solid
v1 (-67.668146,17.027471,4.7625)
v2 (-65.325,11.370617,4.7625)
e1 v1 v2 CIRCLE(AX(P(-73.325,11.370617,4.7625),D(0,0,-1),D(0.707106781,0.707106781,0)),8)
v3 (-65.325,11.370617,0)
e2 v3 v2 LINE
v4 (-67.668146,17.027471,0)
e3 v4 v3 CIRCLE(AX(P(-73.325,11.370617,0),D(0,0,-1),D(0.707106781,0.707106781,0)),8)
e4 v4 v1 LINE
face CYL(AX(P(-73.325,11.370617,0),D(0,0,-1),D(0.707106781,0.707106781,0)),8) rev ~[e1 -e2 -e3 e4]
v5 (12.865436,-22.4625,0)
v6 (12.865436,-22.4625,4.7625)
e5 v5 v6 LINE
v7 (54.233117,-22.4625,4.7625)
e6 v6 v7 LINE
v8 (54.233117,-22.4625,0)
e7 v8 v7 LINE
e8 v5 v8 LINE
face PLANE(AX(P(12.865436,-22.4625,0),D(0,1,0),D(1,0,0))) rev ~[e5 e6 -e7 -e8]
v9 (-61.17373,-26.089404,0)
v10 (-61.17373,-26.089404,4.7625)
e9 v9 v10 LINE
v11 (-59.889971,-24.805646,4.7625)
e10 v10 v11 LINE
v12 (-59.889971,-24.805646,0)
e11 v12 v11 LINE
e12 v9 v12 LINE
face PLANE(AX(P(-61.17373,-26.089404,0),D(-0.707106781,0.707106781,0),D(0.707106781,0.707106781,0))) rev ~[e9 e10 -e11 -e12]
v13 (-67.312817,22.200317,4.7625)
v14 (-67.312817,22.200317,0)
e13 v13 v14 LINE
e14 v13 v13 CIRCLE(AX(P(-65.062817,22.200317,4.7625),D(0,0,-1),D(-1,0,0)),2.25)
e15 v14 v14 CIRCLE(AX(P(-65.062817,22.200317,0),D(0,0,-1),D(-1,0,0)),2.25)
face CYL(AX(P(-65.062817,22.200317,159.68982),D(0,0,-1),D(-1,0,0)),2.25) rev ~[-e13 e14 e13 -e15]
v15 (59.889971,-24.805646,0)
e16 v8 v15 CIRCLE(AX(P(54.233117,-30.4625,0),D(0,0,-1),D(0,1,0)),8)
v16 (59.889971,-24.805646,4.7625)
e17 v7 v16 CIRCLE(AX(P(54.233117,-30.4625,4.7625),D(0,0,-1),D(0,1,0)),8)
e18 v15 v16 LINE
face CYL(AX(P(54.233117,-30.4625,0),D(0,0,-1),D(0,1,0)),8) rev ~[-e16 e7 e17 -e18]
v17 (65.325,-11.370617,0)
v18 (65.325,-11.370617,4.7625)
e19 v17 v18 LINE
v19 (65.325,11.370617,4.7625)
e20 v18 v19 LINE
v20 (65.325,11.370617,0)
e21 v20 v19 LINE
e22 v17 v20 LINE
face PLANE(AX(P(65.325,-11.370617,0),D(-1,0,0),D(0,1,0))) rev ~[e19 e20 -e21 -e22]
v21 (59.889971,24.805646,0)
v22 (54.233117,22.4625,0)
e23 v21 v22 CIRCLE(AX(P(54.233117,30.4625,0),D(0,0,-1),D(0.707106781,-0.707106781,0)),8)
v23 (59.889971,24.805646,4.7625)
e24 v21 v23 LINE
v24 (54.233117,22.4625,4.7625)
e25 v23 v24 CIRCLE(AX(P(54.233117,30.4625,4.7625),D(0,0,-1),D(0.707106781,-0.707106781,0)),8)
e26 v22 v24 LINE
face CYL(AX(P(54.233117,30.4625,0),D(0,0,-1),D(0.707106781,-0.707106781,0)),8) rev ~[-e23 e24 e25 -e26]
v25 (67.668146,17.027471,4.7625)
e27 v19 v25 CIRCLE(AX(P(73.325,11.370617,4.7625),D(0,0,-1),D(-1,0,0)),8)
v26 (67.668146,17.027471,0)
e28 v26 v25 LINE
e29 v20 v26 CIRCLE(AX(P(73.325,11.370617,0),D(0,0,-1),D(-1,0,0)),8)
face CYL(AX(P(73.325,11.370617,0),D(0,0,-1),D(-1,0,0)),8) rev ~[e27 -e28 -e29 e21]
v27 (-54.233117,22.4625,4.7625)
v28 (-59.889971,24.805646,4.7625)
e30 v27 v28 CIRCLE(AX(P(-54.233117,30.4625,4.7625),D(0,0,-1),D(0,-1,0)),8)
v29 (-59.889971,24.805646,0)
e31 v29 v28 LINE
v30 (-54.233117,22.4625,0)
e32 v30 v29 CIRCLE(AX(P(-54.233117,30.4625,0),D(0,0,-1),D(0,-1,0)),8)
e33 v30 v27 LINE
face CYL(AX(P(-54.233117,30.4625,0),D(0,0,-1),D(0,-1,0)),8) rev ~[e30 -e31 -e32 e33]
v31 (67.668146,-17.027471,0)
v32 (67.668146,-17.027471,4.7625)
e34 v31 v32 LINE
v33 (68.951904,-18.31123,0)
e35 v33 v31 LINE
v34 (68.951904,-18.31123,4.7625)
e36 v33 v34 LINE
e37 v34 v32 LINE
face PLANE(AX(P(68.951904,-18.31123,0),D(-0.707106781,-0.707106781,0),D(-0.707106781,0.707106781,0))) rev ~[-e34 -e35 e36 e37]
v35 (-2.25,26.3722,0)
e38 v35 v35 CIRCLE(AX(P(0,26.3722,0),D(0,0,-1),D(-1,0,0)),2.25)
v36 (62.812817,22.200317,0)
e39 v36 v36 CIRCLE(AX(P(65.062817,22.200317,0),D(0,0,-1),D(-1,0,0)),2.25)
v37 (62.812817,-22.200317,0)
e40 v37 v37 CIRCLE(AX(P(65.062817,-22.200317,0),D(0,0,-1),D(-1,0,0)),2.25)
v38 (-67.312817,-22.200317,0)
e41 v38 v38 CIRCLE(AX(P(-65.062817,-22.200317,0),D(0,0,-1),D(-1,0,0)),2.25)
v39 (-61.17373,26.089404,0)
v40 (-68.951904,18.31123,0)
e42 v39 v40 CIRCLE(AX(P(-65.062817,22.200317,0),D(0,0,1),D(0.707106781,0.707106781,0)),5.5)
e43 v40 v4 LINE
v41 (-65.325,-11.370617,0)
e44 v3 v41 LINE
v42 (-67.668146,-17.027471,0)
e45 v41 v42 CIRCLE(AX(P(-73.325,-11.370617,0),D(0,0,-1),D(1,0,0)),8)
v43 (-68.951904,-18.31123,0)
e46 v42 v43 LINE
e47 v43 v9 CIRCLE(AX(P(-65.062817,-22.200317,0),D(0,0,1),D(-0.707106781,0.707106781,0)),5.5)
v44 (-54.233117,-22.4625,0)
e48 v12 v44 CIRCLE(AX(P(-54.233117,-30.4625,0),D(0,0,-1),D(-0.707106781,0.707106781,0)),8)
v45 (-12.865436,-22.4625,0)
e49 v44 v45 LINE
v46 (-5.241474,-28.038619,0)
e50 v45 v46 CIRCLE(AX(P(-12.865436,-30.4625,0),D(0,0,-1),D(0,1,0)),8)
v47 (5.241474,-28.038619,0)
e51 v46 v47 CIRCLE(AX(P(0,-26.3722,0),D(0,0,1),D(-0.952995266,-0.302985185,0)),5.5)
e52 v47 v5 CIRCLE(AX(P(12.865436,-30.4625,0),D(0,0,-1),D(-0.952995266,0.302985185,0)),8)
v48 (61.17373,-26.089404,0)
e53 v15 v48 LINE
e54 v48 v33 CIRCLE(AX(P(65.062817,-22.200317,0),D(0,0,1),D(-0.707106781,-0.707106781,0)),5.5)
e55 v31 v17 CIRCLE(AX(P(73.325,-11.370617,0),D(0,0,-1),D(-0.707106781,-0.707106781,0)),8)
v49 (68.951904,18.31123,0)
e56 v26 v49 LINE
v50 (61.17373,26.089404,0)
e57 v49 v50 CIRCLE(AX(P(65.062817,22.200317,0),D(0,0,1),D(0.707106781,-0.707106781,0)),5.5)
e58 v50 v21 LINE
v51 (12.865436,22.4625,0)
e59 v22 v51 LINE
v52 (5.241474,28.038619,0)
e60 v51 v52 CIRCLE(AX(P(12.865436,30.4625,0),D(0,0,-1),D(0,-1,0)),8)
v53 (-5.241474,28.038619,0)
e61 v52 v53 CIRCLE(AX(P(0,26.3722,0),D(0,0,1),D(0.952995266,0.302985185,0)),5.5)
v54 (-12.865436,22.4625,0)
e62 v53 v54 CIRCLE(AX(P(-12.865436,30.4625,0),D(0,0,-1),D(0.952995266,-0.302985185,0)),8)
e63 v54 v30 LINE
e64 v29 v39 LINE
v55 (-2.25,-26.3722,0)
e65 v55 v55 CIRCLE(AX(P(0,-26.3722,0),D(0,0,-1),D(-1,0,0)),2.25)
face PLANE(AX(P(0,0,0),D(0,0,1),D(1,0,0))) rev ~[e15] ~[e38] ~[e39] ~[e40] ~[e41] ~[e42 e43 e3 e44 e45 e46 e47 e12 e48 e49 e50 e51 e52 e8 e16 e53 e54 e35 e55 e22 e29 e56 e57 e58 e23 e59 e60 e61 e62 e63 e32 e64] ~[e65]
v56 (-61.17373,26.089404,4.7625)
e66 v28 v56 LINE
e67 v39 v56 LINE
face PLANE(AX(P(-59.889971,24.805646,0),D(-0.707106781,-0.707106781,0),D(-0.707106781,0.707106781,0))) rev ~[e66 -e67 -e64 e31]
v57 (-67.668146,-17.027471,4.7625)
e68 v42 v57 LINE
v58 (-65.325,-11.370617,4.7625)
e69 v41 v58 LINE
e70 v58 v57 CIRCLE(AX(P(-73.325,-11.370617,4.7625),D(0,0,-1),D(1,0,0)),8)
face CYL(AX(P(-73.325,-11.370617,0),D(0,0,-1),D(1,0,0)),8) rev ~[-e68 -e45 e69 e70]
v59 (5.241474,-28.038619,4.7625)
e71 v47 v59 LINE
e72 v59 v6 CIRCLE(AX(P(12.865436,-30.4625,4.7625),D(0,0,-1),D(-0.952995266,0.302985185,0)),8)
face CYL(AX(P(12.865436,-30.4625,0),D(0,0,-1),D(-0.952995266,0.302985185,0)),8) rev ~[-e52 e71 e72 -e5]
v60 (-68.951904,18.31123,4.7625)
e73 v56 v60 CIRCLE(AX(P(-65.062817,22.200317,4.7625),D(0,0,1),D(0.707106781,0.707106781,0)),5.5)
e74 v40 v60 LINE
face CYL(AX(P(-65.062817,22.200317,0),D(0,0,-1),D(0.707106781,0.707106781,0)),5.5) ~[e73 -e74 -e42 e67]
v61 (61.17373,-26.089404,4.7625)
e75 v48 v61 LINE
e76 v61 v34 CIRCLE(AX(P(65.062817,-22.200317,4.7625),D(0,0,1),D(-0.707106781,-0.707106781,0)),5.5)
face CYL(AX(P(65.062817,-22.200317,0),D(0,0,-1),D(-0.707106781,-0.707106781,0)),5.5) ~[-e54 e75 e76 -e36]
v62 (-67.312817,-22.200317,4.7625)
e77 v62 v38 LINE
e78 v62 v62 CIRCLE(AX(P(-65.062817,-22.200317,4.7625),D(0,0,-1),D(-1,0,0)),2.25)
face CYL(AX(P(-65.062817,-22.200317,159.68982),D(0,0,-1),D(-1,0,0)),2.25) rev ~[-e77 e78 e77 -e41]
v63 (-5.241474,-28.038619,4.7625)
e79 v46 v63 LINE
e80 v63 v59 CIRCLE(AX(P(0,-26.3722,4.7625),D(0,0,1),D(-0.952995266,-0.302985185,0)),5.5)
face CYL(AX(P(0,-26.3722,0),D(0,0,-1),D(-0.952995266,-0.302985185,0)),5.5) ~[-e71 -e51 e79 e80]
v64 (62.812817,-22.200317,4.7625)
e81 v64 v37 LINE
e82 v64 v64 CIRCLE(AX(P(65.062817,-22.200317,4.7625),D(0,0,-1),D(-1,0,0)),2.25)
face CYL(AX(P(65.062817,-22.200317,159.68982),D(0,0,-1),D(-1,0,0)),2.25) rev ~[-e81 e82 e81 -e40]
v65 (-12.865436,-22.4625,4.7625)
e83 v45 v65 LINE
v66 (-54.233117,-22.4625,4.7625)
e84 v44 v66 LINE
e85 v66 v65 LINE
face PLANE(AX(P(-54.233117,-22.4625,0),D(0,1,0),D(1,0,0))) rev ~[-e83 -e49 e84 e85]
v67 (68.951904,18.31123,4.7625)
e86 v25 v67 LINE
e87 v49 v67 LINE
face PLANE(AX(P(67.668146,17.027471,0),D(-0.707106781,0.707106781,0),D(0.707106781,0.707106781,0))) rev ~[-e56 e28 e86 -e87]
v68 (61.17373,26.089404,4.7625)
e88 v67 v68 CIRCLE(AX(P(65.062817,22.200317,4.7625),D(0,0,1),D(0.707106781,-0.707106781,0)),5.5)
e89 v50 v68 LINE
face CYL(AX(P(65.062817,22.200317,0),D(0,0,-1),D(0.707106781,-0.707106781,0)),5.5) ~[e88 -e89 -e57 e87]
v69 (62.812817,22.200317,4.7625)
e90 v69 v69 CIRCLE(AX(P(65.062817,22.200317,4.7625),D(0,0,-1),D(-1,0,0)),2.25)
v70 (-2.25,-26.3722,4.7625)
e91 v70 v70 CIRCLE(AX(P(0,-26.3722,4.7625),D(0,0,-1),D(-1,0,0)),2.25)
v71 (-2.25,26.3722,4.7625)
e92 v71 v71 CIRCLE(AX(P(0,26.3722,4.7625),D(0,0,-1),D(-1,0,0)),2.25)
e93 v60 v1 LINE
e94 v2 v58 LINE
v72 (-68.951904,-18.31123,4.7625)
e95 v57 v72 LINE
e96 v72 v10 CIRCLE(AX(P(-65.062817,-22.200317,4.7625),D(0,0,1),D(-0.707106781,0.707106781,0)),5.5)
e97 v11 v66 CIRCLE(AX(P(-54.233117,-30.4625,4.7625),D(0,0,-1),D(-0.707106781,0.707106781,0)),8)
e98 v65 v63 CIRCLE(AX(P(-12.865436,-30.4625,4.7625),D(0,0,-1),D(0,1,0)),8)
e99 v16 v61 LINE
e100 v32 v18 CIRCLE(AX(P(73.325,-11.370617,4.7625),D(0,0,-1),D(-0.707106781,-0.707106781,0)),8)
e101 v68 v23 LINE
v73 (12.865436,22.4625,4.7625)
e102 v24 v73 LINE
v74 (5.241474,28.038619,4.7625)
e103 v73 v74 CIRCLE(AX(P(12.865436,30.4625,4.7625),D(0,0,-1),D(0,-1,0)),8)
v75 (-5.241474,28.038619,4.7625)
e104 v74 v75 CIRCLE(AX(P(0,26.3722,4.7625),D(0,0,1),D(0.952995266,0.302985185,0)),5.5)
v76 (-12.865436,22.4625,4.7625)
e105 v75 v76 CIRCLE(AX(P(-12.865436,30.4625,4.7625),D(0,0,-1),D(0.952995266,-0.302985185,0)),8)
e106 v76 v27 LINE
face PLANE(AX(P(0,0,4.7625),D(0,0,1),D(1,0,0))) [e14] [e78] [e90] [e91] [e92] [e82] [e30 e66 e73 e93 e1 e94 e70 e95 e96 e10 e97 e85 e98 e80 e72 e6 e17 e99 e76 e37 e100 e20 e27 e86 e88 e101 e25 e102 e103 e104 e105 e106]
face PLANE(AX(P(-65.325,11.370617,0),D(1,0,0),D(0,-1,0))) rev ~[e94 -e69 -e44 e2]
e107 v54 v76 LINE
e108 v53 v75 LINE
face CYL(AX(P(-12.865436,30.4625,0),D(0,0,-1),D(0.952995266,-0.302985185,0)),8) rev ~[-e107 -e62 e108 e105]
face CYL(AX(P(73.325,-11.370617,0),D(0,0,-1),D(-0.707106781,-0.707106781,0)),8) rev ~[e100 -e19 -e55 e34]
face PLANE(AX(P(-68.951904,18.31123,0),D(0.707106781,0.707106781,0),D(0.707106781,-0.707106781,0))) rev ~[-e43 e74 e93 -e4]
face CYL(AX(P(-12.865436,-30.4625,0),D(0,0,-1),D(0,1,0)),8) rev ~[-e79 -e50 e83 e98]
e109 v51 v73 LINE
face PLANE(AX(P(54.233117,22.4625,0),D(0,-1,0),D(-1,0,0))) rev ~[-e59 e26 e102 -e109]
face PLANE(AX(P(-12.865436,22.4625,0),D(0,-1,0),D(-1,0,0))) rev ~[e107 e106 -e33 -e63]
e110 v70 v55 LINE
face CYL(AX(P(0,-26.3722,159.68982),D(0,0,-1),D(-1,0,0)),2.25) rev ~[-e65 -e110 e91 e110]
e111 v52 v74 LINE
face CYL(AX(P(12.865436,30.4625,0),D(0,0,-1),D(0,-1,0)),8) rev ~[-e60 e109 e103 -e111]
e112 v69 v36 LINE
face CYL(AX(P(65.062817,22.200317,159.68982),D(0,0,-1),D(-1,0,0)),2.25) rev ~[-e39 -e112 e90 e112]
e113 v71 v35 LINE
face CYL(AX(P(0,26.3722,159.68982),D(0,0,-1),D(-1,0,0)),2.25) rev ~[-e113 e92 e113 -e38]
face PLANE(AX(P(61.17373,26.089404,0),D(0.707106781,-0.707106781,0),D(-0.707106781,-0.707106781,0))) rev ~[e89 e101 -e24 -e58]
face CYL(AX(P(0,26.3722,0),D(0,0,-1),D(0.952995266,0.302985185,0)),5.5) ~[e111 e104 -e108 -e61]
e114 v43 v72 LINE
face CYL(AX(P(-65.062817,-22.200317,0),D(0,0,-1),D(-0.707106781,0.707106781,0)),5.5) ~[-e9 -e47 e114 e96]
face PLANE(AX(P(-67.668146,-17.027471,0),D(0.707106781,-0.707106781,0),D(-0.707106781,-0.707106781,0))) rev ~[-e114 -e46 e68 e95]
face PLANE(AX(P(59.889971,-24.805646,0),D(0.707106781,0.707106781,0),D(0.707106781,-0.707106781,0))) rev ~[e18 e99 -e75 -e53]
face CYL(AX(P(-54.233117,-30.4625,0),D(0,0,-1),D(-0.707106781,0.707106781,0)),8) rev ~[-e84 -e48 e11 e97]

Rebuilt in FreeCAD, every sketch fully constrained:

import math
import FreeCAD as App
import Part
import Sketcher

doc = App.newDocument("Part")
body = doc.addObject("PartDesign::Body", "Body")

# Sketch on XY plane
sketch1 = doc.addObject("Sketcher::SketchObject", "Sketch")
body.addObject(sketch1)
sketch1.AttachmentSupport = (doc.XY_Plane, [""])
sketch1.MapMode = "FlatFace"
sketch1.addGeometry(Part.LineSegment(App.Vector(61.2, 26.1, 0), App.Vector(59.9, 24.8, 0)), False)
sketch1.addGeometry(Part.ArcOfCircle(Part.Circle(App.Vector(54.2, 30.5, 0), App.Vector(0, 0, 1), 8), math.radians(-90), math.radians(-45)), False)
sketch1.addGeometry(Part.LineSegment(App.Vector(54.2, 22.5, 0), App.Vector(12.9, 22.5, 0)), False)
sketch1.addGeometry(Part.ArcOfCircle(Part.Circle(App.Vector(12.9, 30.5, 0), App.Vector(0, 0, 1), 8), math.radians(-162), math.radians(-90)), False)
sketch1.addGeometry(Part.ArcOfCircle(Part.Circle(App.Vector(0, 26.4, 0), App.Vector(0, 0, 1), 5.5), math.radians(18), math.radians(162)), False)
sketch1.addGeometry(Part.ArcOfCircle(Part.Circle(App.Vector(-12.9, 30.5, 0), App.Vector(0, 0, 1), 8), math.radians(-90), math.radians(-18)), False)
sketch1.addGeometry(Part.LineSegment(App.Vector(-12.9, 22.5, 0), App.Vector(-54.2, 22.5, 0)), False)
sketch1.addGeometry(Part.ArcOfCircle(Part.Circle(App.Vector(-54.2, 30.5, 0), App.Vector(0, 0, 1), 8), math.radians(-135), math.radians(-90)), False)
sketch1.addGeometry(Part.LineSegment(App.Vector(-59.9, 24.8, 0), App.Vector(-61.2, 26.1, 0)), False)
sketch1.addGeometry(Part.ArcOfCircle(Part.Circle(App.Vector(-65.1, 22.2, 0), App.Vector(0, 0, 1), 5.5), math.radians(45), math.radians(225)), False)
sketch1.addGeometry(Part.LineSegment(App.Vector(-69, 18.3, 0), App.Vector(-67.7, 17, 0)), False)
sketch1.addGeometry(Part.ArcOfCircle(Part.Circle(App.Vector(-73.3, 11.4, 0), App.Vector(0, 0, 1), 8), math.radians(0), math.radians(45)), False)
sketch1.addGeometry(Part.LineSegment(App.Vector(-65.3, 11.4, 0), App.Vector(-65.3, -11.4, 0)), False)
sketch1.addGeometry(Part.ArcOfCircle(Part.Circle(App.Vector(-73.3, -11.4, 0), App.Vector(0, 0, 1), 8), math.radians(-45), math.radians(0)), False)
sketch1.addGeometry(Part.LineSegment(App.Vector(-67.7, -17, 0), App.Vector(-69, -18.3, 0)), False)
sketch1.addGeometry(Part.ArcOfCircle(Part.Circle(App.Vector(-65.1, -22.2, 0), App.Vector(0, 0, 1), 5.5), math.radians(135), math.radians(315)), False)
sketch1.addGeometry(Part.LineSegment(App.Vector(-61.2, -26.1, 0), App.Vector(-59.9, -24.8, 0)), False)
sketch1.addGeometry(Part.ArcOfCircle(Part.Circle(App.Vector(-54.2, -30.5, 0), App.Vector(0, 0, 1), 8), math.radians(90), math.radians(135)), False)
sketch1.addGeometry(Part.LineSegment(App.Vector(-54.2, -22.5, 0), App.Vector(-12.9, -22.5, 0)), False)
sketch1.addGeometry(Part.ArcOfCircle(Part.Circle(App.Vector(-12.9, -30.5, 0), App.Vector(0, 0, 1), 8), math.radians(18), math.radians(90)), False)
sketch1.addGeometry(Part.ArcOfCircle(Part.Circle(App.Vector(0, -26.4, 0), App.Vector(0, 0, 1), 5.5), math.radians(-162), math.radians(-18)), False)
sketch1.addGeometry(Part.ArcOfCircle(Part.Circle(App.Vector(12.9, -30.5, 0), App.Vector(0, 0, 1), 8), math.radians(90), math.radians(162)), False)
sketch1.addGeometry(Part.LineSegment(App.Vector(12.9, -22.5, 0), App.Vector(54.2, -22.5, 0)), False)
sketch1.addGeometry(Part.ArcOfCircle(Part.Circle(App.Vector(54.2, -30.5, 0), App.Vector(0, 0, 1), 8), math.radians(45), math.radians(90)), False)
sketch1.addGeometry(Part.LineSegment(App.Vector(59.9, -24.8, 0), App.Vector(61.2, -26.1, 0)), False)
sketch1.addGeometry(Part.ArcOfCircle(Part.Circle(App.Vector(65.1, -22.2, 0), App.Vector(0, 0, 1), 5.5), math.radians(-135), math.radians(45)), False)
sketch1.addGeometry(Part.LineSegment(App.Vector(69, -18.3, 0), App.Vector(67.7, -17, 0)), False)
sketch1.addGeometry(Part.ArcOfCircle(Part.Circle(App.Vector(73.3, -11.4, 0), App.Vector(0, 0, 1), 8), math.radians(180), math.radians(225)), False)
sketch1.addGeometry(Part.LineSegment(App.Vector(65.3, -11.4, 0), App.Vector(65.3, 11.4, 0)), False)
sketch1.addGeometry(Part.ArcOfCircle(Part.Circle(App.Vector(73.3, 11.4, 0), App.Vector(0, 0, 1), 8), math.radians(135), math.radians(180)), False)
sketch1.addGeometry(Part.LineSegment(App.Vector(67.7, 17, 0), App.Vector(69, 18.3, 0)), False)
sketch1.addGeometry(Part.ArcOfCircle(Part.Circle(App.Vector(65.1, 22.2, 0), App.Vector(0, 0, 1), 5.5), math.radians(-45), math.radians(135)), False)
sketch1.addConstraint(Sketcher.Constraint("Tangent", 0, 2, 1, 2))
sketch1.addConstraint(Sketcher.Constraint("Tangent", 1, 1, 2, 1))
sketch1.addConstraint(Sketcher.Constraint("Tangent", 2, 2, 3, 2))
sketch1.addConstraint(Sketcher.Constraint("Tangent", 3, 1, 4, 1))
sketch1.addConstraint(Sketcher.Constraint("Tangent", 4, 2, 5, 2))
sketch1.addConstraint(Sketcher.Constraint("Tangent", 5, 1, 6, 1))
sketch1.addConstraint(Sketcher.Constraint("Tangent", 6, 2, 7, 2))
sketch1.addConstraint(Sketcher.Constraint("Tangent", 7, 1, 8, 1))
sketch1.addConstraint(Sketcher.Constraint("Tangent", 8, 2, 9, 1))
sketch1.addConstraint(Sketcher.Constraint("Tangent", 9, 2, 10, 1))
sketch1.addConstraint(Sketcher.Constraint("Tangent", 10, 2, 11, 2))
sketch1.addConstraint(Sketcher.Constraint("Tangent", 11, 1, 12, 1))
sketch1.addConstraint(Sketcher.Constraint("Tangent", 12, 2, 13, 2))
sketch1.addConstraint(Sketcher.Constraint("Tangent", 13, 1, 14, 1))
sketch1.addConstraint(Sketcher.Constraint("Tangent", 14, 2, 15, 1))
sketch1.addConstraint(Sketcher.Constraint("Tangent", 15, 2, 16, 1))
sketch1.addConstraint(Sketcher.Constraint("Tangent", 16, 2, 17, 2))
sketch1.addConstraint(Sketcher.Constraint("Tangent", 17, 1, 18, 1))
sketch1.addConstraint(Sketcher.Constraint("Tangent", 18, 2, 19, 2))
sketch1.addConstraint(Sketcher.Constraint("Tangent", 19, 1, 20, 1))
sketch1.addConstraint(Sketcher.Constraint("Tangent", 20, 2, 21, 2))
sketch1.addConstraint(Sketcher.Constraint("Tangent", 21, 1, 22, 1))
sketch1.addConstraint(Sketcher.Constraint("Tangent", 22, 2, 23, 2))
sketch1.addConstraint(Sketcher.Constraint("Tangent", 23, 1, 24, 1))
sketch1.addConstraint(Sketcher.Constraint("Tangent", 24, 2, 25, 1))
sketch1.addConstraint(Sketcher.Constraint("Tangent", 25, 2, 26, 1))
sketch1.addConstraint(Sketcher.Constraint("Tangent", 26, 2, 27, 2))
sketch1.addConstraint(Sketcher.Constraint("Tangent", 27, 1, 28, 1))
sketch1.addConstraint(Sketcher.Constraint("Tangent", 28, 2, 29, 2))
sketch1.addConstraint(Sketcher.Constraint("Tangent", 29, 1, 30, 1))
sketch1.addConstraint(Sketcher.Constraint("Tangent", 30, 2, 31, 1))
sketch1.addConstraint(Sketcher.Constraint("Tangent", 31, 2, 0, 1))
sketch1.addConstraint(Sketcher.Constraint("Horizontal", 2))
sketch1.addConstraint(Sketcher.Constraint("Horizontal", 6))
sketch1.addConstraint(Sketcher.Constraint("Vertical", 12))
sketch1.addConstraint(Sketcher.Constraint("Horizontal", 18))
sketch1.addConstraint(Sketcher.Constraint("Horizontal", 22))
sketch1.addConstraint(Sketcher.Constraint("Vertical", 28))
sketch1.addConstraint(Sketcher.Constraint("Equal", 1, 3))
sketch1.addConstraint(Sketcher.Constraint("Equal", 3, 5))
sketch1.addConstraint(Sketcher.Constraint("Equal", 5, 7))
sketch1.addConstraint(Sketcher.Constraint("Equal", 4, 9))
sketch1.addConstraint(Sketcher.Constraint("Equal", 7, 11))
sketch1.addConstraint(Sketcher.Constraint("Equal", 11, 13))
sketch1.addConstraint(Sketcher.Constraint("Equal", 9, 15))
sketch1.addConstraint(Sketcher.Constraint("Equal", 13, 17))
sketch1.addConstraint(Sketcher.Constraint("Equal", 17, 19))
sketch1.addConstraint(Sketcher.Constraint("Equal", 15, 20))
sketch1.addConstraint(Sketcher.Constraint("Equal", 19, 21))
sketch1.addConstraint(Sketcher.Constraint("Equal", 21, 23))
sketch1.addConstraint(Sketcher.Constraint("Equal", 20, 25))
sketch1.addConstraint(Sketcher.Constraint("Equal", 23, 27))
sketch1.addConstraint(Sketcher.Constraint("Equal", 27, 29))
sketch1.addConstraint(Sketcher.Constraint("Equal", 25, 31))
sketch1.addConstraint(Sketcher.Constraint("Symmetric", 1, 3, 17, 3, -1, 1))
sketch1.addConstraint(Sketcher.Constraint("Symmetric", 4, 3, 20, 3, -1, 1))
sketch1.addConstraint(Sketcher.Constraint("Symmetric", 7, 3, 23, 3, -1, 1))
sketch1.addConstraint(Sketcher.Constraint("Symmetric", 9, 3, 25, 3, -1, 1))
sketch1.addConstraint(Sketcher.Constraint("Symmetric", 11, 3, 27, 3, -1, 1))
sketch1.addConstraint(Sketcher.Constraint("Symmetric", 15, 3, 31, 3, -1, 1))
sketch1.addConstraint(Sketcher.Constraint("Symmetric", 3, 3, 5, 3, -2))
sketch1.addConstraint(Sketcher.Constraint("Symmetric", 15, 3, 25, 3, -2))
sketch1.addConstraint(Sketcher.Constraint("Perpendicular", 0, 8))
sketch1.addConstraint(Sketcher.Constraint("Parallel", 8, 10))
sketch1.addConstraint(Sketcher.Constraint("Perpendicular", 10, 14))
sketch1.addConstraint(Sketcher.Constraint("Perpendicular", 26, 30))
sketch1.addConstraint(Sketcher.Constraint("Horizontal", 13, 3, 27, 3))
sketch1.addConstraint(Sketcher.Constraint("Equal", 8, 10))
sketch1.addConstraint(Sketcher.Constraint("Radius", 1, 8.0))
sketch1.addConstraint(Sketcher.Constraint("Radius", 4, 5.5))
sketch1.addConstraint(Sketcher.Constraint("DistanceX", 11, 3, -1, 1, 73.325))
sketch1.addConstraint(Sketcher.Constraint("DistanceY", 17, 3, 7, 3, 60.925))
sketch1.addConstraint(Sketcher.Constraint("DistanceX", 2, 2, 2, 1, 41.367681))
sketch1.addConstraint(Sketcher.Constraint("DistanceX", 9, 3, 7, 3, 10.8297))
pad1 = doc.addObject("PartDesign::Pad", "Pad")
body.addObject(pad1)
pad1.Profile = sketch1
pad1.Length = 4.7625

# Sketch on XY plane
sketch2 = doc.addObject("Sketcher::SketchObject", "Sketch001")
body.addObject(sketch2)
sketch2.AttachmentSupport = (doc.XY_Plane, [""])
sketch2.MapMode = "FlatFace"
sketch2.AttachmentOffset = App.Placement(App.Vector(0, 0, 4.7625), App.Rotation())
sketch2.addGeometry(Part.Circle(App.Vector(-65.1, 22.2, 0), App.Vector(0, 0, 1), 2.2), False)
sketch2.addGeometry(Part.Circle(App.Vector(0, 26.4, 0), App.Vector(0, 0, 1), 2.2), False)
sketch2.addGeometry(Part.Circle(App.Vector(65.1, 22.2, 0), App.Vector(0, 0, 1), 2.2), False)
sketch2.addGeometry(Part.Circle(App.Vector(65.1, -22.2, 0), App.Vector(0, 0, 1), 2.2), False)
sketch2.addGeometry(Part.Circle(App.Vector(0, -26.4, 0), App.Vector(0, 0, 1), 2.2), False)
sketch2.addGeometry(Part.Circle(App.Vector(-65.1, -22.2, 0), App.Vector(0, 0, 1), 2.2), False)
sketch2.addConstraint(Sketcher.Constraint("Equal", 0, 1))
sketch2.addConstraint(Sketcher.Constraint("Equal", 1, 2))
sketch2.addConstraint(Sketcher.Constraint("Equal", 2, 3))
sketch2.addConstraint(Sketcher.Constraint("Equal", 3, 4))
sketch2.addConstraint(Sketcher.Constraint("Equal", 4, 5))
sketch2.addConstraint(Sketcher.Constraint("Symmetric", 0, 3, 3, 3, -1, 1))
sketch2.addConstraint(Sketcher.Constraint("Symmetric", 1, 3, 4, 3, -1, 1))
sketch2.addConstraint(Sketcher.Constraint("Symmetric", 2, 3, 5, 3, -1, 1))
sketch2.addConstraint(Sketcher.Constraint("Symmetric", 0, 3, 2, 3, -2))
sketch2.addConstraint(Sketcher.Constraint("PointOnObject", 1, 3, -2))
sketch2.addConstraint(Sketcher.Constraint("Diameter", 0, 4.5))
sketch2.addConstraint(Sketcher.Constraint("DistanceY", -1, 1, 1, 3, 26.3722))
sketch2.addConstraint(Sketcher.Constraint("DistanceX", 0, 3, -1, 1, 65.062817))
sketch2.addConstraint(Sketcher.Constraint("DistanceY", -1, 1, 0, 3, 22.200317))
doc.recompute()
hole = doc.addObject("PartDesign::Hole", "Hole")
body.addObject(hole)
hole.Profile = sketch2
hole.ThreadType = "None"
hole.Diameter = 4.5
hole.DepthType = "ThroughAll"

doc.recompute()
